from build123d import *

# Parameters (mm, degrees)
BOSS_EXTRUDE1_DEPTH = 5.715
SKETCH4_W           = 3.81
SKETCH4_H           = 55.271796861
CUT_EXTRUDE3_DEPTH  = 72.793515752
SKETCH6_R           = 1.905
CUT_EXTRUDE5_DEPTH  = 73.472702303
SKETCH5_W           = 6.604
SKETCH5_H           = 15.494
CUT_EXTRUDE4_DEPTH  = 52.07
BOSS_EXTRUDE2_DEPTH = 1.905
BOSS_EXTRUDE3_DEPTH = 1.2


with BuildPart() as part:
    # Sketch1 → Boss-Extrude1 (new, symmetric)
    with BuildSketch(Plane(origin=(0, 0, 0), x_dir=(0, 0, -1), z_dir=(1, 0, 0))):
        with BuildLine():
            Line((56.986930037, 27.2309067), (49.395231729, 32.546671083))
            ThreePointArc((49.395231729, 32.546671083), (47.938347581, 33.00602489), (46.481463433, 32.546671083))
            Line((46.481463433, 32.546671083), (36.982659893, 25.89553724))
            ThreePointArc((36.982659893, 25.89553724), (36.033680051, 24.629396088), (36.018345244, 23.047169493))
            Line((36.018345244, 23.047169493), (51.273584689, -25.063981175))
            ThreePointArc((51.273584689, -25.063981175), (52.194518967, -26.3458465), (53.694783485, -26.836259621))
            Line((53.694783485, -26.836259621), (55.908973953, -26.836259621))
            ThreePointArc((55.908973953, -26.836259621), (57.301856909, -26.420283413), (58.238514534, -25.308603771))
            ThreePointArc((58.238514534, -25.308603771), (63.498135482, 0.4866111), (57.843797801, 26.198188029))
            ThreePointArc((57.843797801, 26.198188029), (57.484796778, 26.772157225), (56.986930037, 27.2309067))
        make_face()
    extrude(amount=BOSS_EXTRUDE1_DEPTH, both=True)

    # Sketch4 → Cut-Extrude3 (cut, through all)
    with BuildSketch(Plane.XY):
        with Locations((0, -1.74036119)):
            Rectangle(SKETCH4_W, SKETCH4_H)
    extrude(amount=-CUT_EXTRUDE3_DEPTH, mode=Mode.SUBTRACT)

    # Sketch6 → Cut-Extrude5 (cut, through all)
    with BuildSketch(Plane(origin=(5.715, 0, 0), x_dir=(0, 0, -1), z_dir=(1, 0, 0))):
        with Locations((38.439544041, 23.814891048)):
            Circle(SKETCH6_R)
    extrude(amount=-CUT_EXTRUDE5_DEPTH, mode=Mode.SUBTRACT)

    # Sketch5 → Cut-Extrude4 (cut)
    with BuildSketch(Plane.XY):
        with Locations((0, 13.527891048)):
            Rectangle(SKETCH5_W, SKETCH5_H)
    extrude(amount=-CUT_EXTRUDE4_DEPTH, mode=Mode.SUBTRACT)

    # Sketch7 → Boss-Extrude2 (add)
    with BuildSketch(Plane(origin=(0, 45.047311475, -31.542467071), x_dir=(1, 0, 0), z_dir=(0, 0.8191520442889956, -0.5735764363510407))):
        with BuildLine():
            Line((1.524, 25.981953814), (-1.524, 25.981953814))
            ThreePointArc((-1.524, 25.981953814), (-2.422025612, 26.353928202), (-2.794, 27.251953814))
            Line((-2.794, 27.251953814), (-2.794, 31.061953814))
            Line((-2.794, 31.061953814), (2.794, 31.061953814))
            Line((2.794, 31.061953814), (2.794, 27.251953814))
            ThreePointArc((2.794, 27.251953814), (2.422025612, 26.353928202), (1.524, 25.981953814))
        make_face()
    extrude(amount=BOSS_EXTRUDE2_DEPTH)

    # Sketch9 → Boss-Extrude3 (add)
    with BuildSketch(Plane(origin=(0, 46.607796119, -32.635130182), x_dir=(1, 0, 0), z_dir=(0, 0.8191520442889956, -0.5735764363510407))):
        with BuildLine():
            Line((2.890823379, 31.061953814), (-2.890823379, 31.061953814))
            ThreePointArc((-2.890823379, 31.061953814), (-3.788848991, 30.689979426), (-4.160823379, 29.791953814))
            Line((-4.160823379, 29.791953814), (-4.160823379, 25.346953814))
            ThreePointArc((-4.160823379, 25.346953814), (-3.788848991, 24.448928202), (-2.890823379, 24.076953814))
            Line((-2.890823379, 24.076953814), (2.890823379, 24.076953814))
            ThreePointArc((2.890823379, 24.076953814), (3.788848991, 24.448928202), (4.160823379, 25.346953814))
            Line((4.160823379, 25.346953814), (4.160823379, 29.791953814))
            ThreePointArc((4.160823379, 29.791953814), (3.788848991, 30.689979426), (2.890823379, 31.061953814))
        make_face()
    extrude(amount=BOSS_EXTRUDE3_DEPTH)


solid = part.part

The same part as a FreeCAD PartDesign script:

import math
import FreeCAD as App
import Part
import Sketcher

V = App.Vector
Q = App.Units.Quantity


def add_polygon(sketch, points):
    """Adds a closed chain of lines whose ends are joined by coincident constraints."""
    first, n = sketch.GeometryCount, len(points)
    for a, b in zip(points, points[1:] + points[:1]):
        sketch.addGeometry(Part.LineSegment(App.Vector(*a, 0), App.Vector(*b, 0)), False)
    for i in range(n):
        sketch.addConstraint(Sketcher.Constraint("Coincident", first + i, 2, first + (i + 1) % n, 1))

doc = App.newDocument("Part")
params = doc.addObject("Spreadsheet::Sheet", "Params")
for row, (alias, value) in enumerate([
    ("sketch1_radius", "0.1 in"),
    ("sketch1_radius2", "2.5 in"),
    ("pad1_length", "0.45 in"),
    ("sketch2_width", "0.15 in"),
    ("sketch3_diameter", "0.15 in"),
    ("sketch4_width", "0.26 in"),
    ("sketch4_height", "0.61 in"),
    ("pocket3_length", "2.05 in"),
    ("sketch5_radius", "0.05 in"),
    ("sketch5_width", "0.12 in"),
    ("sketch5_height", "0.15 in"),
    ("pad2_length", "0.075 in"),
    ("sketch6_radius", "0.05 in"),
    ("sketch6_height", "0.175 in"),
    ("pad3_length", "1.2 mm"),
], start=1):
    params.set(f"A{row}", alias)
    params.set(f"B{row}", "=" + value)
    params.setAlias(f"B{row}", alias)

body = doc.addObject("PartDesign::Body", "Body")

# Sketch on YZ plane
sketch1 = body.newObject("Sketcher::SketchObject", "Sketch")
sketch1.AttachmentSupport = (doc.getObject("YZ_Plane"), [""])
sketch1.MapMode = "FlatFace"
sketch1.addGeometry([
    Part.LineSegment(V(27.2, -57, 0), V(32.5, -49.4, 0)),  # 0
    Part.ArcOfCircle(Part.Circle(V(30.5, -47.9, 0), V(0, 0, 1), 2.5), math.radians(-35), math.radians(35)),  # 1
    Part.LineSegment(V(32.5, -46.5, 0), V(25.9, -37, 0)),  # 2
    Part.ArcOfCircle(Part.Circle(V(23.8, -38.4, 0), V(0, 0, 1), 2.5), math.radians(35), math.radians(108)),  # 3
    Part.LineSegment(V(23, -36, 0), V(-25.1, -51.3, 0)),  # 4
    Part.ArcOfCircle(Part.Circle(V(-24.3, -53.7, 0), V(0, 0, 1), 2.5), math.radians(108), math.radians(180)),  # 5
    Part.LineSegment(V(-26.8, -53.7, 0), V(-26.8, -55.9, 0)),  # 6
    Part.ArcOfCircle(Part.Circle(V(-24.3, -55.9, 0), V(0, 0, 1), 2.5), math.radians(-180), math.radians(-113)),  # 7
    Part.ArcOfCircle(Part.Circle(V(0, 0, 0), V(0, 0, 1), 63.5), math.radians(-113), math.radians(-66)),  # 8
    Part.ArcOfCircle(Part.Circle(V(25.2, -55.5, 0), V(0, 0, 1), 2.5), math.radians(-66), math.radians(-35)),  # 9
], False)
sketch1.addConstraint([
    Sketcher.Constraint("Tangent", 0, 2, 1, 1),
    Sketcher.Constraint("Tangent", 1, 2, 2, 1),
    Sketcher.Constraint("Tangent", 2, 2, 3, 1),
    Sketcher.Constraint("Tangent", 3, 2, 4, 1),
    Sketcher.Constraint("Tangent", 4, 2, 5, 1),
    Sketcher.Constraint("Tangent", 5, 2, 6, 1),
    Sketcher.Constraint("Tangent", 6, 2, 7, 1),
    Sketcher.Constraint("Tangent", 7, 2, 8, 1),
    Sketcher.Constraint("Tangent", 8, 2, 9, 1),
    Sketcher.Constraint("Tangent", 9, 2, 0, 1),
    Sketcher.Constraint("Vertical", 6),
    Sketcher.Constraint("Coincident", 8, 3, -1, 1),
    Sketcher.Constraint("Equal", 1, 3),
    Sketcher.Constraint("Equal", 3, 5),
    Sketcher.Constraint("Equal", 5, 7),
    Sketcher.Constraint("Equal", 7, 9),
    Sketcher.Constraint("Vertical", 0, 2, 1, 2),
    Sketcher.Constraint("Radius", 1, Q("0.1 in")),
    Sketcher.Constraint("Radius", 8, Q("2.5 in")),
    Sketcher.Constraint("Angle", 0, Q("55 deg")),
    Sketcher.Constraint("DistanceY", 5, 3, 3, 3, Q("0.6006 in")),
    Sketcher.Constraint("DistanceY", 6, 2, 6, 1, Q("2.21419 mm")),
    Sketcher.Constraint("DistanceY", 9, 3, 1, 3, Q("7.591698 mm")),
    Sketcher.Constraint("DistanceY", 9, 3, 3, 3, Q("17.090502 mm")),
    Sketcher.Constraint("DistanceX", 3, 2, 1, 2, Q("9.499502 mm")),
])
sketch1.setExpression("Constraints[17]", "Params.sketch1_radius")
sketch1.setExpression("Constraints[18]", "Params.sketch1_radius2")
pad1 = body.newObject("PartDesign::Pad", "Pad")
pad1.Profile = sketch1
pad1.setExpression("Length", "Params.pad1_length")
pad1.Midplane = True

# Sketch on XY plane
sketch2 = body.newObject("Sketcher::SketchObject", "Sketch001")
sketch2.AttachmentSupport = (doc.getObject("XY_Plane"), [""])
sketch2.MapMode = "FlatFace"
add_polygon(sketch2, [(-1.9, 25.9), (-1.9, -29.4), (1.9, -29.4), (1.9, 25.9)])  # lines 0-3
sketch2.addConstraint([
    Sketcher.Constraint("Vertical", 0),
    Sketcher.Constraint("Horizontal", 1),
    Sketcher.Constraint("Vertical", 2),
    Sketcher.Constraint("Horizontal", 3),
    Sketcher.Constraint("DistanceX", 1, 1, 1, 2, Q("0.15 in")),
    Sketcher.Constraint("DistanceX", 0, 2, -1, 1, Q("0.075 in")),
    Sketcher.Constraint("DistanceY", 0, 2, 0, 1, Q("55.271797 mm")),
    Sketcher.Constraint("DistanceY", 0, 2, -1, 1, Q("29.37626 mm")),
])
sketch2.setExpression("Constraints[8]", "Params.sketch2_width")
pocket1 = body.newObject("PartDesign::Pocket", "Pocket")
pocket1.Profile = sketch2
pocket1.Type = "ThroughAll"

# Sketch on YZ plane
sketch3 = body.newObject("Sketcher::SketchObject", "Sketch002")
sketch3.AttachmentSupport = (doc.getObject("YZ_Plane"), [""])
sketch3.MapMode = "FlatFace"
sketch3.AttachmentOffset = App.Placement(V(0, 0, 0.225 * 25.4), App.Rotation())
sketch3.addGeometry(Part.Circle(V(23.8, -38.4, 0), V(0, 0, 1), 1.9), False)
sketch3.addConstraint([
    Sketcher.Constraint("Diameter", 0, Q("0.15 in")),
    Sketcher.Constraint("DistanceX", -1, 1, 0, 3, Q("23.814891 mm")),
    Sketcher.Constraint("DistanceY", 0, 3, -1, 1, Q("38.439544 mm")),
])
sketch3.setExpression("Constraints[0]", "Params.sketch3_diameter")
pocket2 = body.newObject("PartDesign::Pocket", "Pocket001")
pocket2.Profile = sketch3
pocket2.Type = "ThroughAll"

# Sketch on XY plane
sketch4 = body.newObject("Sketcher::SketchObject", "Sketch003")
sketch4.AttachmentSupport = (doc.getObject("XY_Plane"), [""])
sketch4.MapMode = "FlatFace"
add_polygon(sketch4, [(-3, 21), (-3, 6), (3, 6), (3, 21)])  # lines 0-3
sketch4.addConstraint([
    Sketcher.Constraint("Vertical", 0),
    Sketcher.Constraint("Horizontal", 1),
    Sketcher.Constraint("Vertical", 2),
    Sketcher.Constraint("Horizontal", 3),
    Sketcher.Constraint("DistanceX", 1, 1, 1, 2, Q("0.26 in")),
    Sketcher.Constraint("DistanceY", 0, 2, 0, 1, Q("0.61 in")),
    Sketcher.Constraint("DistanceX", 0, 2, -1, 1, Q("0.13 in")),
    Sketcher.Constraint("DistanceY", -1, 1, 0, 2, Q("5.780891 mm")),
])
sketch4.setExpression("Constraints[8]", "Params.sketch4_width")
sketch4.setExpression("Constraints[9]", "Params.sketch4_height")
pocket3 = body.newObject("PartDesign::Pocket", "Pocket002")
pocket3.Profile = sketch4
pocket3.setExpression("Length", "Params.pocket3_length")

# Sketch on an angled plane
sketch5 = body.newObject("Sketcher::SketchObject", "Sketch004")
sketch5.Placement = App.Placement(V(0, 45.047311, -31.542467), App.Rotation(V(1, 0, 0), V(0, -0.573576436, -0.819152044), V(0, 0.819152044, -0.573576436), "ZXY"))
sketch5.addGeometry([
    Part.LineSegment(V(-1.5, 26, 0), V(1.5, 26, 0)),  # 0
    Part.ArcOfCircle(Part.Circle(V(1.5, 27.3, 0), V(0, 0, 1), 1.3), math.radians(-90), math.radians(0)),  # 1
    Part.LineSegment(V(2.8, 27.3, 0), V(2.8, 31.1, 0)),  # 2
    Part.LineSegment(V(2.8, 31.1, 0), V(-2.8, 31.1, 0)),  # 3
    Part.LineSegment(V(-2.8, 31.1, 0), V(-2.8, 27.3, 0)),  # 4
    Part.ArcOfCircle(Part.Circle(V(-1.5, 27.3, 0), V(0, 0, 1), 1.3), math.radians(180), math.radians(270)),  # 5
], False)
sketch5.addConstraint([
    Sketcher.Constraint("Tangent", 0, 2, 1, 1),
    Sketcher.Constraint("Tangent", 1, 2, 2, 1),
    Sketcher.Constraint("Coincident", 2, 2, 3, 1),
    Sketcher.Constraint("Coincident", 3, 2, 4, 1),
    Sketcher.Constraint("Tangent", 4, 2, 5, 1),
    Sketcher.Constraint("Tangent", 5, 2, 0, 1),
    Sketcher.Constraint("Horizontal", 0),
    Sketcher.Constraint("Vertical", 2),
    Sketcher.Constraint("Horizontal", 3),
    Sketcher.Constraint("Vertical", 4),
    Sketcher.Constraint("Equal", 1, 5),
    Sketcher.Constraint("Radius", 1, Q("0.05 in")),
    Sketcher.Constraint("DistanceX", 0, 1, 0, 2, Q("0.12 in")),
    Sketcher.Constraint("DistanceY", 2, 1, 2, 2, Q("0.15 in")),
    Sketcher.Constraint("DistanceX", -1, 1, 1, 3, Q("0.06 in")),
    Sketcher.Constraint("DistanceY", -1, 1, 1, 3, Q("27.251954 mm")),
])
sketch5.setExpression("Constraints[11]", "Params.sketch5_radius")
sketch5.setExpression("Constraints[12]", "Params.sketch5_width")
sketch5.setExpression("Constraints[13]", "Params.sketch5_height")
pad2 = body.newObject("PartDesign::Pad", "Pad001")
pad2.Profile = sketch5
pad2.setExpression("Length", "Params.pad2_length")

# Sketch on an angled plane
sketch6 = body.newObject("Sketcher::SketchObject", "Sketch005")
sketch6.Placement = App.Placement(V(0, 46.607796, -32.63513), App.Rotation(V(1, 0, 0), V(0, -0.573576436, -0.819152044), V(0, 0.819152044, -0.573576436), "ZXY"))
sketch6.addGeometry([
    Part.LineSegment(V(2.9, 31.1, 0), V(-2.9, 31.1, 0)),  # 0
    Part.ArcOfCircle(Part.Circle(V(-2.9, 29.8, 0), V(0, 0, 1), 1.3), math.radians(90), math.radians(180)),  # 1
    Part.LineSegment(V(-4.2, 29.8, 0), V(-4.2, 25.3, 0)),  # 2
    Part.ArcOfCircle(Part.Circle(V(-2.9, 25.3, 0), V(0, 0, 1), 1.3), math.radians(180), math.radians(270)),  # 3
    Part.LineSegment(V(-2.9, 24.1, 0), V(2.9, 24.1, 0)),  # 4
    Part.ArcOfCircle(Part.Circle(V(2.9, 25.3, 0), V(0, 0, 1), 1.3), math.radians(-90), math.radians(0)),  # 5
    Part.LineSegment(V(4.2, 25.3, 0), V(4.2, 29.8, 0)),  # 6
    Part.ArcOfCircle(Part.Circle(V(2.9, 29.8, 0), V(0, 0, 1), 1.3), math.radians(0), math.radians(90)),  # 7
], False)
sketch6.addConstraint([
    Sketcher.Constraint("Tangent", 0, 2, 1, 1),
    Sketcher.Constraint("Tangent", 1, 2, 2, 1),
    Sketcher.Constraint("Tangent", 2, 2, 3, 1),
    Sketcher.Constraint("Tangent", 3, 2, 4, 1),
    Sketcher.Constraint("Tangent", 4, 2, 5, 1),
    Sketcher.Constraint("Tangent", 5, 2, 6, 1),
    Sketcher.Constraint("Tangent", 6, 2, 7, 1),
    Sketcher.Constraint("Tangent", 7, 2, 0, 1),
    Sketcher.Constraint("Horizontal", 0),
    Sketcher.Constraint("Vertical", 2),
    Sketcher.Constraint("Horizontal", 4),
    Sketcher.Constraint("Vertical", 6),
    Sketcher.Constraint("Equal", 1, 3),
    Sketcher.Constraint("Equal", 3, 5),
    Sketcher.Constraint("Equal", 5, 7),
    Sketcher.Constraint("Radius", 1, Q("0.05 in")),
    Sketcher.Constraint("DistanceY", 2, 2, 2, 1, Q("0.175 in")),
    Sketcher.Constraint("DistanceX", 0, 2, 0, 1, Q("5.781647 mm")),
    Sketcher.Constraint("DistanceX", 1, 3, -1, 1, Q("2.890823 mm")),
    Sketcher.Constraint("DistanceY", -1, 1, 1, 3, Q("29.791954 mm")),
])
sketch6.setExpression("Constraints[15]", "Params.sketch6_radius")
sketch6.setExpression("Constraints[16]", "Params.sketch6_height")
pad3 = body.newObject("PartDesign::Pad", "Pad002")
pad3.Profile = sketch6
pad3.setExpression("Length", "Params.pad3_length")

doc.recompute()
